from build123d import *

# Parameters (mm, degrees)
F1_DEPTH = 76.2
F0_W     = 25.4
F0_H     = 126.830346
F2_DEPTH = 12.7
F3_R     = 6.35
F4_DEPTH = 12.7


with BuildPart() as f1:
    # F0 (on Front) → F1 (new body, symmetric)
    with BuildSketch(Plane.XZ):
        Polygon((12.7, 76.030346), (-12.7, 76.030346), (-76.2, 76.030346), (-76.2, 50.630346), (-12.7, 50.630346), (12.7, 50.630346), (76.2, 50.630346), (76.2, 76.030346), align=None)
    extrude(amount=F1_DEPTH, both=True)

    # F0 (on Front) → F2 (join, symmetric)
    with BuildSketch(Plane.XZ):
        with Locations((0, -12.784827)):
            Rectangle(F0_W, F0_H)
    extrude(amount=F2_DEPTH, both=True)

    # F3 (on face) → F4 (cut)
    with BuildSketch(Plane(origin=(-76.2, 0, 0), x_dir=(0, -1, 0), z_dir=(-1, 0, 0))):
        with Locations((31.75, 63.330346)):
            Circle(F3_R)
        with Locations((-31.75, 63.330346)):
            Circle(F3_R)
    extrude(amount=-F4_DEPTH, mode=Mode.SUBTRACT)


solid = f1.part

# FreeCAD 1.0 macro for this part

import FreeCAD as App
import Part
import Sketcher
Q = App.Units.Quantity

doc = App.newDocument("Part")
params = doc.addObject("Spreadsheet::Sheet", "Params")
for row, (alias, value) in enumerate([
    ("sketch1_width", "6 in"),
    ("sketch1_height", "1 in"),
    ("pad1_length", "6 in"),
    ("sketch2_width", "1 in"),
    ("pad2_length", "1 in"),
    ("sketch3_diameter", "0.5 in"),
    ("pocket1_length", "0.5 in"),
], start=1):
    params.set(f"A{row}", alias)
    params.set(f"B{row}", "=" + value)
    params.setAlias(f"B{row}", alias)

body = doc.addObject("PartDesign::Body", "Body")

sketch1 = doc.addObject("Sketcher::SketchObject", "Sketch")
body.addObject(sketch1)
sketch1.AttachmentSupport = (doc.XZ_Plane, [""])
sketch1.MapMode = "FlatFace"
sketch1.addGeometry([
    Part.LineSegment(App.Vector(-76.2, 76.030346, 0), App.Vector(-76.2, 50.630346, 0)),
    Part.LineSegment(App.Vector(-76.2, 50.630346, 0), App.Vector(76.2, 50.630346, 0)),
    Part.LineSegment(App.Vector(76.2, 50.630346, 0), App.Vector(76.2, 76.030346, 0)),
    Part.LineSegment(App.Vector(76.2, 76.030346, 0), App.Vector(-76.2, 76.030346, 0)),
], False)
sketch1.addConstraint([
    Sketcher.Constraint("Coincident", 0, 2, 1, 1),
    Sketcher.Constraint("Coincident", 1, 2, 2, 1),
    Sketcher.Constraint("Coincident", 2, 2, 3, 1),
    Sketcher.Constraint("Coincident", 3, 2, 0, 1),
    Sketcher.Constraint("Vertical", 0),
    Sketcher.Constraint("Horizontal", 1),
    Sketcher.Constraint("Vertical", 2),
    Sketcher.Constraint("Horizontal", 3),
    Sketcher.Constraint("DistanceX", 1, 1, 1, 2, Q("6 in")),
    Sketcher.Constraint("DistanceY", 0, 2, 0, 1, Q("1 in")),
    Sketcher.Constraint("DistanceX", 0, 2, -1, 1, Q("3 in")),
    Sketcher.Constraint("DistanceY", -1, 1, 0, 2, 50.630346),
])
sketch1.setExpression("Constraints[8]", "Params.sketch1_width")
sketch1.setExpression("Constraints[9]", "Params.sketch1_height")
pad1 = doc.addObject("PartDesign::Pad", "Pad")
body.addObject(pad1)
pad1.Profile = sketch1
pad1.setExpression("Length", "Params.pad1_length")
pad1.Midplane = True

sketch2 = doc.addObject("Sketcher::SketchObject", "Sketch001")
body.addObject(sketch2)
sketch2.AttachmentSupport = (doc.XZ_Plane, [""])
sketch2.MapMode = "FlatFace"
sketch2.addGeometry([
    Part.LineSegment(App.Vector(-12.7, 50.630346, 0), App.Vector(-12.7, -76.2, 0)),
    Part.LineSegment(App.Vector(-12.7, -76.2, 0), App.Vector(12.7, -76.2, 0)),
    Part.LineSegment(App.Vector(12.7, -76.2, 0), App.Vector(12.7, 50.630346, 0)),
    Part.LineSegment(App.Vector(12.7, 50.630346, 0), App.Vector(-12.7, 50.630346, 0)),
], False)
sketch2.addConstraint([
    Sketcher.Constraint("Coincident", 0, 2, 1, 1),
    Sketcher.Constraint("Coincident", 1, 2, 2, 1),
    Sketcher.Constraint("Coincident", 2, 2, 3, 1),
    Sketcher.Constraint("Coincident", 3, 2, 0, 1),
    Sketcher.Constraint("Vertical", 0),
    Sketcher.Constraint("Horizontal", 1),
    Sketcher.Constraint("Vertical", 2),
    Sketcher.Constraint("Horizontal", 3),
    Sketcher.Constraint("DistanceX", 1, 1, 1, 2, Q("1 in")),
    Sketcher.Constraint("DistanceY", 0, 2, -1, 1, Q("3 in")),
    Sketcher.Constraint("DistanceX", 0, 2, -1, 1, Q("0.5 in")),
    Sketcher.Constraint("DistanceY", 0, 2, 0, 1, 126.830346),
])
sketch2.setExpression("Constraints[8]", "Params.sketch2_width")
pad2 = doc.addObject("PartDesign::Pad", "Pad001")
body.addObject(pad2)
pad2.Profile = sketch2
pad2.setExpression("Length", "Params.pad2_length")
pad2.Midplane = True

sketch3 = doc.addObject("Sketcher::SketchObject", "Sketch002")
body.addObject(sketch3)
sketch3.AttachmentSupport = (doc.YZ_Plane, [""])
sketch3.MapMode = "FlatFace"
sketch3.AttachmentOffset = App.Placement(App.Vector(0, 0, -3 * 25.4), App.Rotation())
sketch3.addGeometry([
    Part.Circle(App.Vector(-31.75, 63.330346, 0), App.Vector(0, 0, 1), 6.35),
    Part.Circle(App.Vector(31.75, 63.330346, 0), App.Vector(0, 0, 1), 6.35),
], False)
sketch3.addConstraint([
    Sketcher.Constraint("Equal", 0, 1),
    Sketcher.Constraint("Symmetric", 0, 3, 1, 3, -2),
    Sketcher.Constraint("Diameter", 0, Q("0.5 in")),
    Sketcher.Constraint("DistanceX", 0, 3, 1, 3, Q("2.5 in")),
    Sketcher.Constraint("DistanceY", -1, 1, 0, 3, 63.330346),
])
sketch3.setExpression("Constraints[2]", "Params.sketch3_diameter")
pocket1 = doc.addObject("PartDesign::Pocket", "Pocket")
body.addObject(pocket1)
pocket1.Profile = sketch3
pocket1.setExpression("Length", "Params.pocket1_length")
pocket1.Reversed = True

doc.recompute()
